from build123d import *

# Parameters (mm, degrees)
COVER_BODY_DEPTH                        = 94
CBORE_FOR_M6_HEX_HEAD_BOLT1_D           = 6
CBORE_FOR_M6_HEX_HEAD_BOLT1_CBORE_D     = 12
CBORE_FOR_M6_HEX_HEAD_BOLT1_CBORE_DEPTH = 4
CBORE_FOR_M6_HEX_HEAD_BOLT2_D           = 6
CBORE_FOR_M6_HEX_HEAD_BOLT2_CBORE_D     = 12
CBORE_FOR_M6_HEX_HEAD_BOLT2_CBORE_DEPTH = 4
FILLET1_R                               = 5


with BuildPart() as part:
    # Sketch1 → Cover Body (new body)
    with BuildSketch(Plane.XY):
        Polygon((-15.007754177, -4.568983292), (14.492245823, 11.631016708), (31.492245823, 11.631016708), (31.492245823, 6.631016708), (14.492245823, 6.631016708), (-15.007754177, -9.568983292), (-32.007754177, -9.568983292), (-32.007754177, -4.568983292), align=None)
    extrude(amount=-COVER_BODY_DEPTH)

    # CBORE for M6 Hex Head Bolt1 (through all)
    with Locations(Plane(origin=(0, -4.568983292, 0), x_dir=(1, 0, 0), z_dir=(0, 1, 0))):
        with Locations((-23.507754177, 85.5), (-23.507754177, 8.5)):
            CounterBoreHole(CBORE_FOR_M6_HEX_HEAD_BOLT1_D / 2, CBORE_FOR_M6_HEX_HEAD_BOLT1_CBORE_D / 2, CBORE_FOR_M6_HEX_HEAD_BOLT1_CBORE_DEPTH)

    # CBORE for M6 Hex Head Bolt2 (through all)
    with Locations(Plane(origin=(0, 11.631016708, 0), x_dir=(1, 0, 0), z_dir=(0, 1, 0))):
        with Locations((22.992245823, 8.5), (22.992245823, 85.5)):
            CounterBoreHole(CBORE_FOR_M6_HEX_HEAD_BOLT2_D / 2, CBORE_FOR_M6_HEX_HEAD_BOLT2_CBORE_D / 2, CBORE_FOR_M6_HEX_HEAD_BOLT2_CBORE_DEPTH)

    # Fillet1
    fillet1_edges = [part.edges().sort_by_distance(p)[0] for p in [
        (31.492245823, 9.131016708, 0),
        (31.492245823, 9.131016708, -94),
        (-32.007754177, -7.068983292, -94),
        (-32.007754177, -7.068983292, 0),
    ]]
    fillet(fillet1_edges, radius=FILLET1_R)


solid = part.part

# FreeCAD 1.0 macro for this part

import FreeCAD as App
import Part
import Sketcher

V = App.Vector


def edges_at(feature, points):
    """Names of the edges that pass closest to the given points."""
    edges = feature.Shape.Edges
    near = lambda p: min(range(len(edges)), key=lambda i: edges[i].distToShape(Part.Vertex(*p))[0])
    return sorted({f"Edge{near(p) + 1}" for p in points})


def add_polygon(sketch, points):
    """Adds a closed chain of lines whose ends are joined by coincident constraints."""
    first, n = sketch.GeometryCount, len(points)
    for a, b in zip(points, points[1:] + points[:1]):
        sketch.addGeometry(Part.LineSegment(App.Vector(*a, 0), App.Vector(*b, 0)), False)
    for i in range(n):
        sketch.addConstraint(Sketcher.Constraint("Coincident", first + i, 2, first + (i + 1) % n, 1))

doc = App.newDocument("Part")
body = doc.addObject("PartDesign::Body", "Body")

sketch1 = body.newObject("Sketcher::SketchObject", "Sketch")
sketch1.AttachmentSupport = (doc.getObject("XY_Plane"), [""])
sketch1.MapMode = "FlatFace"
add_polygon(sketch1, [(14.492246, 11.631017), (-15.007754, -4.568983), (-32.007754, -4.568983), (-32.007754, -9.568983), (-15.007754, -9.568983), (14.492246, 6.631017), (31.492246, 6.631017), (31.492246, 11.631017)])
sketch1.addConstraint([
    Sketcher.Constraint("Horizontal", 1),
    Sketcher.Constraint("Vertical", 2),
    Sketcher.Constraint("Horizontal", 3),
    Sketcher.Constraint("Horizontal", 5),
    Sketcher.Constraint("Vertical", 6),
    Sketcher.Constraint("Horizontal", 7),
    Sketcher.Constraint("Parallel", 0, 4),
    Sketcher.Constraint("Vertical", 0, 2, 3, 2),
    Sketcher.Constraint("Vertical", 4, 2, 7, 2),
    Sketcher.Constraint("Equal", 3, 5),
    Sketcher.Constraint("DistanceX", 1, 2, 1, 1, 17.0),
    Sketcher.Constraint("DistanceY", 2, 2, 2, 1, 5.0),
    Sketcher.Constraint("DistanceX", 0, 2, 4, 2, 29.5),
    Sketcher.Constraint("DistanceY", 0, 2, 4, 2, 11.2),
    Sketcher.Constraint("DistanceX", 0, 2, -1, 1, 15.007754),
    Sketcher.Constraint("DistanceY", 0, 2, -1, 1, 4.568983),
])
pad1 = body.newObject("PartDesign::Pad", "Pad")
pad1.Profile = sketch1
pad1.Length = 94
pad1.Reversed = True

sketch2 = body.newObject("Sketcher::SketchObject", "Sketch001")
sketch2.AttachmentSupport = (doc.getObject("XZ_Plane"), [""])
sketch2.MapMode = "FlatFace"
sketch2.AttachmentOffset = App.Placement(V(0, 0, 4.568983), App.Rotation())
sketch2.addGeometry([
    Part.Circle(V(-23.507754, -85.5, 0), V(0, 0, 1), 3),
    Part.Circle(V(-23.507754, -8.5, 0), V(0, 0, 1), 3),
], False)
sketch2.addConstraint([
    Sketcher.Constraint("Equal", 0, 1),
    Sketcher.Constraint("Vertical", 0, 3, 1, 3),
    Sketcher.Constraint("Diameter", 0, 6.0),
    Sketcher.Constraint("DistanceY", 0, 3, 1, 3, 77.0),
    Sketcher.Constraint("DistanceY", 0, 3, -1, 1, 85.5),
    Sketcher.Constraint("DistanceX", 0, 3, -1, 1, 23.507754),
])
doc.recompute()
hole = body.newObject("PartDesign::Hole", "Hole")
hole.Profile = sketch2
hole.ThreadType = "None"
hole.Diameter = 6
hole.DepthType = "ThroughAll"
hole.HoleCutType = "Counterbore"
hole.HoleCutDiameter = 12
hole.HoleCutDepth = 4
hole.Reversed = True

sketch3 = body.newObject("Sketcher::SketchObject", "Sketch002")
sketch3.AttachmentSupport = (doc.getObject("XZ_Plane"), [""])
sketch3.MapMode = "FlatFace"
sketch3.AttachmentOffset = App.Placement(V(0, 0, -11.631017), App.Rotation())
sketch3.addGeometry([
    Part.Circle(V(22.992246, -8.5, 0), V(0, 0, 1), 3),
    Part.Circle(V(22.992246, -85.5, 0), V(0, 0, 1), 3),
], False)
sketch3.addConstraint([
    Sketcher.Constraint("Equal", 0, 1),
    Sketcher.Constraint("Vertical", 0, 3, 1, 3),
    Sketcher.Constraint("Diameter", 0, 6.0),
    Sketcher.Constraint("DistanceY", 1, 3, 0, 3, 77.0),
    Sketcher.Constraint("DistanceY", 0, 3, -1, 1, 8.5),
    Sketcher.Constraint("DistanceX", -1, 1, 0, 3, 22.992246),
])
doc.recompute()
hole2 = body.newObject("PartDesign::Hole", "Hole001")
hole2.Profile = sketch3
hole2.ThreadType = "None"
hole2.Diameter = 6
hole2.DepthType = "ThroughAll"
hole2.HoleCutType = "Counterbore"
hole2.HoleCutDiameter = 12
hole2.HoleCutDepth = 4
hole2.Reversed = True
doc.recompute()

fillet = body.newObject("PartDesign::Fillet", "Fillet")
fillet.Base = (hole2, edges_at(hole2, [
    (31.492, 9.131, 0),
    (31.492, 9.131, -94),
    (-32.008, -7.069, -94),
    (-32.008, -7.069, 0),
]))
fillet.Radius = 5

doc.recompute()
